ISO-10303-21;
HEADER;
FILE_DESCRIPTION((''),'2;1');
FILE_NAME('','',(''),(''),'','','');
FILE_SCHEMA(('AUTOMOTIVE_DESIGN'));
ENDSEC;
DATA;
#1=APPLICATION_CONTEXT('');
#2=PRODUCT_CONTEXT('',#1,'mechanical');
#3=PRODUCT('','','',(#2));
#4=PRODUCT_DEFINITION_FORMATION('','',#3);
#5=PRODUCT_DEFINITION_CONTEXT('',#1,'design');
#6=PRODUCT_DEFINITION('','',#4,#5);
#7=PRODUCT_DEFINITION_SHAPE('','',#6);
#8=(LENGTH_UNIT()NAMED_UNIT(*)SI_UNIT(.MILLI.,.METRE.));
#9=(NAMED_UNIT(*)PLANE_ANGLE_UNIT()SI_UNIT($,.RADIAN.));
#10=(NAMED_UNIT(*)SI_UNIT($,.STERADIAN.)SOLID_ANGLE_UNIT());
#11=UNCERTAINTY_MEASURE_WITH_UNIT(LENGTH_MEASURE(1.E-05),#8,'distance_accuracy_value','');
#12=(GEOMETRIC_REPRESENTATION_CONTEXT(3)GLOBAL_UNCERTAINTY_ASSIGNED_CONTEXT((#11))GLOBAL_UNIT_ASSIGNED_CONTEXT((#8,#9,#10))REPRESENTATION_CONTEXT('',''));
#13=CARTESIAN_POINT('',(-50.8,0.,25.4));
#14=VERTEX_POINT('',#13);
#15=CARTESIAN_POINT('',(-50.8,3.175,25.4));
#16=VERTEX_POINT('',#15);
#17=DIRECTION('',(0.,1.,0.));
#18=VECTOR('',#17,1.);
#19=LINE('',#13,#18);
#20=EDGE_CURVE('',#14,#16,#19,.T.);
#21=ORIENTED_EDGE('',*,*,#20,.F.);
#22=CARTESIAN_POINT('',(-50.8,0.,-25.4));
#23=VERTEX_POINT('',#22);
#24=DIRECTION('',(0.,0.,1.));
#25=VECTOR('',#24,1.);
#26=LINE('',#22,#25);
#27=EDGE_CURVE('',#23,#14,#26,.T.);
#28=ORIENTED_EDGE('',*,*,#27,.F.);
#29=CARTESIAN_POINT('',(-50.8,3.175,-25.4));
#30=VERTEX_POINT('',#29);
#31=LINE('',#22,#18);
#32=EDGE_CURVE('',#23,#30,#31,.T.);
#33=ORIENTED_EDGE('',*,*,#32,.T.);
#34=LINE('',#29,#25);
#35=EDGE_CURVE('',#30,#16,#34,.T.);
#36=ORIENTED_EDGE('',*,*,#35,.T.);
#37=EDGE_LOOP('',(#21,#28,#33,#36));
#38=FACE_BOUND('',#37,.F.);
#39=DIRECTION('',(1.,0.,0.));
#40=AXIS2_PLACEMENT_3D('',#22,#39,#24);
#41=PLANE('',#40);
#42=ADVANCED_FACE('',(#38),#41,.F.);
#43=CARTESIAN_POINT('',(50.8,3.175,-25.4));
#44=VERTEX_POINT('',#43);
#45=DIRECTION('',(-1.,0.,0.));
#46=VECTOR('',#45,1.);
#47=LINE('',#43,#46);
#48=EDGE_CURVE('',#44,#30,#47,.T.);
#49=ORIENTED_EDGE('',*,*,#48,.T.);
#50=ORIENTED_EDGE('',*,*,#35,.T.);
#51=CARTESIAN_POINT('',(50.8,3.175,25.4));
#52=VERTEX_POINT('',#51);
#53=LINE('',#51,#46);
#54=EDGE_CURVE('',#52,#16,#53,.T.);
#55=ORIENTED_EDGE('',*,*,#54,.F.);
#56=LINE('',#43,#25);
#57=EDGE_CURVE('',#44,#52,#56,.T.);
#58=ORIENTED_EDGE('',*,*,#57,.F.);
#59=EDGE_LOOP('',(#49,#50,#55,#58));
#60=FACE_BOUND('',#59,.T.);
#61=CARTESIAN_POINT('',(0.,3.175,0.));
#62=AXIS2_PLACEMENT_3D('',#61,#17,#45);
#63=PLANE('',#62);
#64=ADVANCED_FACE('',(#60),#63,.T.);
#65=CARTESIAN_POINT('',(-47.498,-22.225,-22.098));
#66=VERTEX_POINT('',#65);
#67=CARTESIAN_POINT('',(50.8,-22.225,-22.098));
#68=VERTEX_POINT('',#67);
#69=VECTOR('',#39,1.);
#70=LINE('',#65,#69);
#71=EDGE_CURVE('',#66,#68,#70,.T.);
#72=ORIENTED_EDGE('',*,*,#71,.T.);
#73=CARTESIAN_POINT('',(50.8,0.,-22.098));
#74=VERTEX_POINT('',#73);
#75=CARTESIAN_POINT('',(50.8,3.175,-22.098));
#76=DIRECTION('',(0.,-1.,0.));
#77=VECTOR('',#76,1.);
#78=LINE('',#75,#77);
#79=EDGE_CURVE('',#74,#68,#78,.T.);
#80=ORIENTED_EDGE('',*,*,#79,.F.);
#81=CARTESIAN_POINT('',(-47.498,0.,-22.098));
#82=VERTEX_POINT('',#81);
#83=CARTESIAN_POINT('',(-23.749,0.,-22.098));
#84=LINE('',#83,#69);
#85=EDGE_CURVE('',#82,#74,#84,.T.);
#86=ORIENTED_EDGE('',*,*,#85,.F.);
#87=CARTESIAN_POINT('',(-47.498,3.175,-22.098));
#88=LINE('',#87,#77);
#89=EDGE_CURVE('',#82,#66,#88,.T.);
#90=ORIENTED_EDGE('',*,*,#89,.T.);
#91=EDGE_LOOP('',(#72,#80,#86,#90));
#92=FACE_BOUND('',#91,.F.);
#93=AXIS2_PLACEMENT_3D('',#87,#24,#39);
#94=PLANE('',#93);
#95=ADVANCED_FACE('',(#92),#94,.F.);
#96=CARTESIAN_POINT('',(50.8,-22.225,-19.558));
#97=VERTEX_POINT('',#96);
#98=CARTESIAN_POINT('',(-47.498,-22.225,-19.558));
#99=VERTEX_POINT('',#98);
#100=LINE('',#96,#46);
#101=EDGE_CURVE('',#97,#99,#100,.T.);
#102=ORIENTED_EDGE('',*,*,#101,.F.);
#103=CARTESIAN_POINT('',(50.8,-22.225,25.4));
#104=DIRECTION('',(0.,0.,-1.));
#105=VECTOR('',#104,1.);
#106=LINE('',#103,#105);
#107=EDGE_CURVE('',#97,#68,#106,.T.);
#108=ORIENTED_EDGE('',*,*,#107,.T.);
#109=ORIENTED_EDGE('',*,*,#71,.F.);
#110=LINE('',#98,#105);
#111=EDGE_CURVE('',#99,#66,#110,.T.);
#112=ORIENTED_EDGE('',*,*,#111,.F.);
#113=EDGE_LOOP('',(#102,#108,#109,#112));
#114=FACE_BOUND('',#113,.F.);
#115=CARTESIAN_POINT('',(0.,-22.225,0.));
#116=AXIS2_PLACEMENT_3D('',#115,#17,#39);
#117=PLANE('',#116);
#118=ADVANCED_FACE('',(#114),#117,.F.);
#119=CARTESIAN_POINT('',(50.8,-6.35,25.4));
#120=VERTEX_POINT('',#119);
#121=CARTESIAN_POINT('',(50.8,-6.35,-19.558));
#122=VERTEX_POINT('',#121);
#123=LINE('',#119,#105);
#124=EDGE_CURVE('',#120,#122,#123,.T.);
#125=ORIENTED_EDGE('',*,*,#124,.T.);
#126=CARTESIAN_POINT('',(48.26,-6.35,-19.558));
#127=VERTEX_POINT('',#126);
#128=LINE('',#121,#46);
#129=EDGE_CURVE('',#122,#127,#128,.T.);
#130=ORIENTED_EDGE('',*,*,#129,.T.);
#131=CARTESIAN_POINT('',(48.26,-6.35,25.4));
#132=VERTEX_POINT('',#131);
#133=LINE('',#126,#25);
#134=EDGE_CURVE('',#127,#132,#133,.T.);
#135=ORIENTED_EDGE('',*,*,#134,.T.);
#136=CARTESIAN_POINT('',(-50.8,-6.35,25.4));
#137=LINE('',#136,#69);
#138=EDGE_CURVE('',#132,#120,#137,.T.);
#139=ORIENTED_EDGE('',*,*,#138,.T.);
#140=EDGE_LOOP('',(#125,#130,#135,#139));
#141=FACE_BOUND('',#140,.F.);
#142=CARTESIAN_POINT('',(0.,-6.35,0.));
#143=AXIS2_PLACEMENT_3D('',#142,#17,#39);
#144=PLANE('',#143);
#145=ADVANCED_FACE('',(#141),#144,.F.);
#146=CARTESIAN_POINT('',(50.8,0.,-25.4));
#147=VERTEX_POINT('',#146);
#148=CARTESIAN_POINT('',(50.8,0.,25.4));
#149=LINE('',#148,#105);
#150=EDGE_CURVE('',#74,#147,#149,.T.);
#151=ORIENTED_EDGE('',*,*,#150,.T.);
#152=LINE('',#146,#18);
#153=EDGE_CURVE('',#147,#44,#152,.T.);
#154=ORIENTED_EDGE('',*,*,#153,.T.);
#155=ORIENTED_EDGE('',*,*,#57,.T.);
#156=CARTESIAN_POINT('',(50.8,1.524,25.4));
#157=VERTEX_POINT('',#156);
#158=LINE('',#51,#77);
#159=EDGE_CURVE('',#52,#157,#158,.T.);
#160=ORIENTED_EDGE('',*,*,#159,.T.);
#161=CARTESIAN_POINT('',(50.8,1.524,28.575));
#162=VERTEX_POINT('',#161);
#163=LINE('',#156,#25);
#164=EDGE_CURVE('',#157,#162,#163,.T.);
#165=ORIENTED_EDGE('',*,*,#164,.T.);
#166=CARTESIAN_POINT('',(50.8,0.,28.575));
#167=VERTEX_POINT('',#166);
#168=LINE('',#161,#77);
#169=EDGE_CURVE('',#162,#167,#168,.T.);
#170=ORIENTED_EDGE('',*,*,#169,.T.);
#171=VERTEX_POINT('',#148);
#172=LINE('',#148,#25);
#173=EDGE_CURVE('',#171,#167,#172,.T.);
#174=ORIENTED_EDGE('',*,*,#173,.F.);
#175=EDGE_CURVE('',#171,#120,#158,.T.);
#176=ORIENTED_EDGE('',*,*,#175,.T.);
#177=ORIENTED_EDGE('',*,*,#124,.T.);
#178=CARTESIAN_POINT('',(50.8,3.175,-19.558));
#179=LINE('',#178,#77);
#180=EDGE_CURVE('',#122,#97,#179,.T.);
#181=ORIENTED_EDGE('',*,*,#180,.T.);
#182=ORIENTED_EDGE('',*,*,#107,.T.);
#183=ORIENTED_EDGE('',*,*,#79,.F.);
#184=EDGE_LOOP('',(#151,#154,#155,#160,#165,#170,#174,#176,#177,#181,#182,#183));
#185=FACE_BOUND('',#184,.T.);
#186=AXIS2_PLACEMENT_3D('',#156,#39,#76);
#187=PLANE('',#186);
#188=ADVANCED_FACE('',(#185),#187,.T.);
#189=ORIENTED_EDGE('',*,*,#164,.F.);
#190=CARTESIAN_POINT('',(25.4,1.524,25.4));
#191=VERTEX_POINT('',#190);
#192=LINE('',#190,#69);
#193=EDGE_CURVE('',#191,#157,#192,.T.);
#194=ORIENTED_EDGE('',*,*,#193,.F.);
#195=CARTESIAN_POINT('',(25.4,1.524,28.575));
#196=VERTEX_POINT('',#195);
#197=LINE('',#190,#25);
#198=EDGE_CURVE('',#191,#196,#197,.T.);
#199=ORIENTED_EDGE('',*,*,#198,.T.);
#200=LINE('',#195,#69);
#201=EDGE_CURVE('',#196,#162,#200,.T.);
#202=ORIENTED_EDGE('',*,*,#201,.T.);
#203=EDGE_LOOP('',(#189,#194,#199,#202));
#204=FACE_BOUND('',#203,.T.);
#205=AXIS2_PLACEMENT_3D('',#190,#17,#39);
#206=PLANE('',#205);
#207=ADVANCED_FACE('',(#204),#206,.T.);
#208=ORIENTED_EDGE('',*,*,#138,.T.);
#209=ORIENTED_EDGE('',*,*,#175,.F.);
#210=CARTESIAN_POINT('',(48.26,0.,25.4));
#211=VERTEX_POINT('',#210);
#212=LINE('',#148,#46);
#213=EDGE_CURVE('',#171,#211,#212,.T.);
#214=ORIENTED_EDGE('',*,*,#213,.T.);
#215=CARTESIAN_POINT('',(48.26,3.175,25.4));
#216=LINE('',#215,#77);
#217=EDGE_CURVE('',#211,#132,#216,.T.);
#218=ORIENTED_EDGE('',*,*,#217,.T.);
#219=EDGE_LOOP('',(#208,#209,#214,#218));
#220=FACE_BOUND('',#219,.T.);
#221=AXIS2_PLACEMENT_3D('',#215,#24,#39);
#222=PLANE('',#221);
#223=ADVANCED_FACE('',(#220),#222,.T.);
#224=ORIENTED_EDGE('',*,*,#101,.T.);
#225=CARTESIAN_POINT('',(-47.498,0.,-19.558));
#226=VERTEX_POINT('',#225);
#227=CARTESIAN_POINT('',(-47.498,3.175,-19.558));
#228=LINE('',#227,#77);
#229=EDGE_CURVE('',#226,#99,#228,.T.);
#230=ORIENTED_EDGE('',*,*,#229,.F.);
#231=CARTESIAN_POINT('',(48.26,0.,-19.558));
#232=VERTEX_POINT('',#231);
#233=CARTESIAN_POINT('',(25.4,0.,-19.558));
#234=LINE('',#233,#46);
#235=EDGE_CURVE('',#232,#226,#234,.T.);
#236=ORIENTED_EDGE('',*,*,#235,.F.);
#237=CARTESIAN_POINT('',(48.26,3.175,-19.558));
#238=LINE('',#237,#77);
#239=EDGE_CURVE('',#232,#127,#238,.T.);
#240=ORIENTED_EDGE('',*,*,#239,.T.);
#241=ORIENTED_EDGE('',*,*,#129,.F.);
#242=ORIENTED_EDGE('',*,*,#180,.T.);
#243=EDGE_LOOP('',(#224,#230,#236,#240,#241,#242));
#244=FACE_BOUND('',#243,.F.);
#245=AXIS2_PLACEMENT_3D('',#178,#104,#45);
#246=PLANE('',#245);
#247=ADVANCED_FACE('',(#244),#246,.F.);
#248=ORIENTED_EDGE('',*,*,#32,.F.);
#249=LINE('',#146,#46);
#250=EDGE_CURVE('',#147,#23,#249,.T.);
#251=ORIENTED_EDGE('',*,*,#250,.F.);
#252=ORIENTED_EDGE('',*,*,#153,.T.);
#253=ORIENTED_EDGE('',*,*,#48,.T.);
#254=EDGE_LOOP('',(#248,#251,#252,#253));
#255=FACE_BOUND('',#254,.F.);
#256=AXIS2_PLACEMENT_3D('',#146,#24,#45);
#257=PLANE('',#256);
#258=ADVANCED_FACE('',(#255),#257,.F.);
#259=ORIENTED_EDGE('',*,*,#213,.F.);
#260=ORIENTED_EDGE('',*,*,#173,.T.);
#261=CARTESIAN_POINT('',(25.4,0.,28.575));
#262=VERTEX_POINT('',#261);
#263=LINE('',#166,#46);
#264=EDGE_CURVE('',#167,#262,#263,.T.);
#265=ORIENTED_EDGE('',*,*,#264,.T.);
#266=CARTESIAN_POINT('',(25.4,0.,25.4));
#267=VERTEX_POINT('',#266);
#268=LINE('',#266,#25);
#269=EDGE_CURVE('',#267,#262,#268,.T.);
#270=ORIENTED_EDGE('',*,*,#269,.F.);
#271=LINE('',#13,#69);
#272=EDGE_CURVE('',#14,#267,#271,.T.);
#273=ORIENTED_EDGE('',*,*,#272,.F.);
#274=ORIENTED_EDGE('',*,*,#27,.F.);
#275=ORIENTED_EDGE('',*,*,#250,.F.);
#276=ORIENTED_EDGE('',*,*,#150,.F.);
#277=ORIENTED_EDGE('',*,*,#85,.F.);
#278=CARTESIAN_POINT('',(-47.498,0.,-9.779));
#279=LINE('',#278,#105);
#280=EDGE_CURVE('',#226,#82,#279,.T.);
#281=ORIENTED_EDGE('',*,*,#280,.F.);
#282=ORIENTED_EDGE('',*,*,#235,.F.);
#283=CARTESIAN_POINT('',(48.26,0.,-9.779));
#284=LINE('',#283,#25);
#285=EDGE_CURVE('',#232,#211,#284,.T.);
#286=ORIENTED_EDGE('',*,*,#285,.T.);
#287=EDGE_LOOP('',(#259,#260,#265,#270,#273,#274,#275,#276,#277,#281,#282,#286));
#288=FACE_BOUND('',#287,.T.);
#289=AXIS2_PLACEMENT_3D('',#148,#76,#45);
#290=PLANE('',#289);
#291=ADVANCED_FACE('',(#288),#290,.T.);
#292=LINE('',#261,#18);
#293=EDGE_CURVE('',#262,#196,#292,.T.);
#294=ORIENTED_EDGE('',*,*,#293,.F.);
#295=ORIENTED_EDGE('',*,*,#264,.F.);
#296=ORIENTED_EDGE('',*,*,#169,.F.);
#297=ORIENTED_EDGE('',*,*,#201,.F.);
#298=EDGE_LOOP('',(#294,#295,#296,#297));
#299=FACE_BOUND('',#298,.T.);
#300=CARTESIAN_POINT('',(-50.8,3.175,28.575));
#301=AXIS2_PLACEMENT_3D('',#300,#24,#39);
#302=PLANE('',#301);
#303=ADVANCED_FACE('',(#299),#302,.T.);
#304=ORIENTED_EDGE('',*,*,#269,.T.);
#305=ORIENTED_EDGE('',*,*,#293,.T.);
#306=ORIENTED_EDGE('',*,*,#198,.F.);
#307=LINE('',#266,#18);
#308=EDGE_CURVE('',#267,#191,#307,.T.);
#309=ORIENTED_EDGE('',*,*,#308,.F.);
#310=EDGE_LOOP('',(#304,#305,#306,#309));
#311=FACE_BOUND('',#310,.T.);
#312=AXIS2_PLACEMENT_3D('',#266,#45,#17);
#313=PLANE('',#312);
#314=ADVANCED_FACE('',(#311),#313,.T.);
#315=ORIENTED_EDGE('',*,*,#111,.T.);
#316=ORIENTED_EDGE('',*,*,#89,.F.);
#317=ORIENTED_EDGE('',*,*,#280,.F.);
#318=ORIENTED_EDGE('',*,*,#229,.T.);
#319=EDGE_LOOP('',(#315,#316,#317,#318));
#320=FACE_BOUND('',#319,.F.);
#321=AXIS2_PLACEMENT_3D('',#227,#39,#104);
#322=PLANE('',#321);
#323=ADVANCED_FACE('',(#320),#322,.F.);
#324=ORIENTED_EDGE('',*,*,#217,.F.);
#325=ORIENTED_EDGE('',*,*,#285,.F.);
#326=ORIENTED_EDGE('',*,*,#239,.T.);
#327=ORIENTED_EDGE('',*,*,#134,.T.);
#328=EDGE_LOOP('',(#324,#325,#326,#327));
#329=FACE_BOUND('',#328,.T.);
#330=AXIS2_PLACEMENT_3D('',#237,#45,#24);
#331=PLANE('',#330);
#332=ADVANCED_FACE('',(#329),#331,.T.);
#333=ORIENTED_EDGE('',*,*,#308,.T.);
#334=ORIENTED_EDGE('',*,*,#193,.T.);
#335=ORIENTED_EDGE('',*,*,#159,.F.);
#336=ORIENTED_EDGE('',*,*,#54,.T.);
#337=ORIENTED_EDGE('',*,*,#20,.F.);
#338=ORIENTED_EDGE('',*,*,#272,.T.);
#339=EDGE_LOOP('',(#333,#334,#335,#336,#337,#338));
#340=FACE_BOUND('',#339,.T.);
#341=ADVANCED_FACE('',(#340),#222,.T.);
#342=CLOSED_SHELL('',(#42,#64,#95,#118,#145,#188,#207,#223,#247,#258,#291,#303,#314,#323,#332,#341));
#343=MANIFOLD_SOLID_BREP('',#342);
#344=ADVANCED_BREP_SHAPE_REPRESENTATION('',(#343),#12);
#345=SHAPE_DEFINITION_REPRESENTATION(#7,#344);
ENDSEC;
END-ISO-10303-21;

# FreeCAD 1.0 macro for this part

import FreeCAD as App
import Part
import Sketcher

V = App.Vector
Q = App.Units.Quantity

doc = App.newDocument("Part")
body = doc.addObject("PartDesign::Body", "Body")

sketch1 = doc.addObject("Sketcher::SketchObject", "Sketch")
body.addObject(sketch1)
sketch1.AttachmentSupport = (doc.XZ_Plane, [""])
sketch1.MapMode = "FlatFace"
sketch1.addGeometry([
    Part.LineSegment(V(-50.8, -25.4, 0), V(-50.8, 25.4, 0)),
    Part.LineSegment(V(-50.8, 25.4, 0), V(50.8, 25.4, 0)),
    Part.LineSegment(V(50.8, 25.4, 0), V(50.8, -25.4, 0)),
    Part.LineSegment(V(50.8, -25.4, 0), V(-50.8, -25.4, 0)),
], False)
sketch1.addConstraint([
    Sketcher.Constraint("Coincident", 0, 2, 1, 1),
    Sketcher.Constraint("Coincident", 1, 2, 2, 1),
    Sketcher.Constraint("Coincident", 2, 2, 3, 1),
    Sketcher.Constraint("Coincident", 3, 2, 0, 1),
    Sketcher.Constraint("Vertical", 0),
    Sketcher.Constraint("Horizontal", 1),
    Sketcher.Constraint("Vertical", 2),
    Sketcher.Constraint("Horizontal", 3),
    Sketcher.Constraint("Symmetric", 0, 2, 2, 2, -1, 1),
    Sketcher.Constraint("DistanceX", 1, 1, 1, 2, Q("4 in")),
    Sketcher.Constraint("DistanceY", 0, 1, 0, 2, Q("2 in")),
])
pad1 = doc.addObject("PartDesign::Pad", "Pad")
body.addObject(pad1)
pad1.Profile = sketch1
pad1.Length = Q("0.125 in")
pad1.Reversed = True

sketch2 = doc.addObject("Sketcher::SketchObject", "Sketch001")
body.addObject(sketch2)
sketch2.AttachmentSupport = (doc.XZ_Plane, [""])
sketch2.MapMode = "FlatFace"
sketch2.AttachmentOffset = App.Placement(V(0, 0, -0.125 * 25.4), App.Rotation())
sketch2.addGeometry([
    Part.LineSegment(V(-47.498, -19.558, 0), V(50.8, -19.558, 0)),
    Part.LineSegment(V(50.8, -19.558, 0), V(50.8, -22.098, 0)),
    Part.LineSegment(V(50.8, -22.098, 0), V(-47.498, -22.098, 0)),
    Part.LineSegment(V(-47.498, -22.098, 0), V(-47.498, -19.558, 0)),
], False)
sketch2.addConstraint([
    Sketcher.Constraint("Coincident", 0, 2, 1, 1),
    Sketcher.Constraint("Coincident", 1, 2, 2, 1),
    Sketcher.Constraint("Coincident", 2, 2, 3, 1),
    Sketcher.Constraint("Coincident", 3, 2, 0, 1),
    Sketcher.Constraint("Horizontal", 0),
    Sketcher.Constraint("Vertical", 1),
    Sketcher.Constraint("Horizontal", 2),
    Sketcher.Constraint("Vertical", 3),
    Sketcher.Constraint("DistanceY", 1, 2, 1, 1, Q("0.1 in")),
    Sketcher.Constraint("DistanceX", -1, 1, 0, 2, Q("2 in")),
    Sketcher.Constraint("DistanceX", 0, 1, 0, 2, Q("3.87 in")),
    Sketcher.Constraint("DistanceY", 0, 2, -1, 1, Q("0.77 in")),
])
pad2 = doc.addObject("PartDesign::Pad", "Pad001")
body.addObject(pad2)
pad2.Profile = sketch2
pad2.Length = Q("1 in")

sketch3 = doc.addObject("Sketcher::SketchObject", "Sketch002")
body.addObject(sketch3)
sketch3.AttachmentSupport = (doc.XZ_Plane, [""])
sketch3.MapMode = "FlatFace"
sketch3.AttachmentOffset = App.Placement(V(0, 0, -0.125 * 25.4), App.Rotation())
sketch3.addGeometry([
    Part.LineSegment(V(50.8, 25.4, 0), V(50.8, -19.558, 0)),
    Part.LineSegment(V(50.8, -19.558, 0), V(48.26, -19.558, 0)),
    Part.LineSegment(V(48.26, -19.558, 0), V(48.26, 25.4, 0)),
    Part.LineSegment(V(48.26, 25.4, 0), V(50.8, 25.4, 0)),
], False)
sketch3.addConstraint([
    Sketcher.Constraint("Coincident", 0, 2, 1, 1),
    Sketcher.Constraint("Coincident", 1, 2, 2, 1),
    Sketcher.Constraint("Coincident", 2, 2, 3, 1),
    Sketcher.Constraint("Coincident", 3, 2, 0, 1),
    Sketcher.Constraint("Vertical", 0),
    Sketcher.Constraint("Horizontal", 1),
    Sketcher.Constraint("Vertical", 2),
    Sketcher.Constraint("Horizontal", 3),
    Sketcher.Constraint("DistanceX", 1, 2, 1, 1, Q("0.1 in")),
    Sketcher.Constraint("DistanceX", -1, 1, 0, 2, Q("2 in")),
    Sketcher.Constraint("DistanceY", -1, 1, 2, 2, Q("1 in")),
    Sketcher.Constraint("DistanceY", 0, 2, 0, 1, Q("1.77 in")),
])
pad3 = doc.addObject("PartDesign::Pad", "Pad002")
body.addObject(pad3)
pad3.Profile = sketch3
pad3.Length = Q("0.375 in")

sketch4 = doc.addObject("Sketcher::SketchObject", "Sketch003")
body.addObject(sketch4)
sketch4.AttachmentSupport = (doc.XY_Plane, [""])
sketch4.MapMode = "FlatFace"
sketch4.AttachmentOffset = App.Placement(V(0, 0, 1 * 25.4), App.Rotation())
sketch4.addGeometry([
    Part.LineSegment(V(25.4, 0, 0), V(50.8, 0, 0)),
    Part.LineSegment(V(50.8, 0, 0), V(50.8, 1.524, 0)),
    Part.LineSegment(V(50.8, 1.524, 0), V(25.4, 1.524, 0)),
    Part.LineSegment(V(25.4, 1.524, 0), V(25.4, 0, 0)),
], False)
sketch4.addConstraint([
    Sketcher.Constraint("Coincident", 0, 2, 1, 1),
    Sketcher.Constraint("Coincident", 1, 2, 2, 1),
    Sketcher.Constraint("Coincident", 2, 2, 3, 1),
    Sketcher.Constraint("Coincident", 3, 2, 0, 1),
    Sketcher.Constraint("Horizontal", 0),
    Sketcher.Constraint("Vertical", 1),
    Sketcher.Constraint("Horizontal", 2),
    Sketcher.Constraint("Vertical", 3),
    Sketcher.Constraint("PointOnObject", 0, 2, -1),
    Sketcher.Constraint("DistanceX", 0, 1, 0, 2, Q("1 in")),
    Sketcher.Constraint("DistanceX", -1, 1, 2, 2, Q("1 in")),
    Sketcher.Constraint("DistanceY", 1, 1, 1, 2, Q("0.06 in")),
])
pad4 = doc.addObject("PartDesign::Pad", "Pad003")
body.addObject(pad4)
pad4.Profile = sketch4
pad4.Length = Q("0.125 in")

doc.recompute()
